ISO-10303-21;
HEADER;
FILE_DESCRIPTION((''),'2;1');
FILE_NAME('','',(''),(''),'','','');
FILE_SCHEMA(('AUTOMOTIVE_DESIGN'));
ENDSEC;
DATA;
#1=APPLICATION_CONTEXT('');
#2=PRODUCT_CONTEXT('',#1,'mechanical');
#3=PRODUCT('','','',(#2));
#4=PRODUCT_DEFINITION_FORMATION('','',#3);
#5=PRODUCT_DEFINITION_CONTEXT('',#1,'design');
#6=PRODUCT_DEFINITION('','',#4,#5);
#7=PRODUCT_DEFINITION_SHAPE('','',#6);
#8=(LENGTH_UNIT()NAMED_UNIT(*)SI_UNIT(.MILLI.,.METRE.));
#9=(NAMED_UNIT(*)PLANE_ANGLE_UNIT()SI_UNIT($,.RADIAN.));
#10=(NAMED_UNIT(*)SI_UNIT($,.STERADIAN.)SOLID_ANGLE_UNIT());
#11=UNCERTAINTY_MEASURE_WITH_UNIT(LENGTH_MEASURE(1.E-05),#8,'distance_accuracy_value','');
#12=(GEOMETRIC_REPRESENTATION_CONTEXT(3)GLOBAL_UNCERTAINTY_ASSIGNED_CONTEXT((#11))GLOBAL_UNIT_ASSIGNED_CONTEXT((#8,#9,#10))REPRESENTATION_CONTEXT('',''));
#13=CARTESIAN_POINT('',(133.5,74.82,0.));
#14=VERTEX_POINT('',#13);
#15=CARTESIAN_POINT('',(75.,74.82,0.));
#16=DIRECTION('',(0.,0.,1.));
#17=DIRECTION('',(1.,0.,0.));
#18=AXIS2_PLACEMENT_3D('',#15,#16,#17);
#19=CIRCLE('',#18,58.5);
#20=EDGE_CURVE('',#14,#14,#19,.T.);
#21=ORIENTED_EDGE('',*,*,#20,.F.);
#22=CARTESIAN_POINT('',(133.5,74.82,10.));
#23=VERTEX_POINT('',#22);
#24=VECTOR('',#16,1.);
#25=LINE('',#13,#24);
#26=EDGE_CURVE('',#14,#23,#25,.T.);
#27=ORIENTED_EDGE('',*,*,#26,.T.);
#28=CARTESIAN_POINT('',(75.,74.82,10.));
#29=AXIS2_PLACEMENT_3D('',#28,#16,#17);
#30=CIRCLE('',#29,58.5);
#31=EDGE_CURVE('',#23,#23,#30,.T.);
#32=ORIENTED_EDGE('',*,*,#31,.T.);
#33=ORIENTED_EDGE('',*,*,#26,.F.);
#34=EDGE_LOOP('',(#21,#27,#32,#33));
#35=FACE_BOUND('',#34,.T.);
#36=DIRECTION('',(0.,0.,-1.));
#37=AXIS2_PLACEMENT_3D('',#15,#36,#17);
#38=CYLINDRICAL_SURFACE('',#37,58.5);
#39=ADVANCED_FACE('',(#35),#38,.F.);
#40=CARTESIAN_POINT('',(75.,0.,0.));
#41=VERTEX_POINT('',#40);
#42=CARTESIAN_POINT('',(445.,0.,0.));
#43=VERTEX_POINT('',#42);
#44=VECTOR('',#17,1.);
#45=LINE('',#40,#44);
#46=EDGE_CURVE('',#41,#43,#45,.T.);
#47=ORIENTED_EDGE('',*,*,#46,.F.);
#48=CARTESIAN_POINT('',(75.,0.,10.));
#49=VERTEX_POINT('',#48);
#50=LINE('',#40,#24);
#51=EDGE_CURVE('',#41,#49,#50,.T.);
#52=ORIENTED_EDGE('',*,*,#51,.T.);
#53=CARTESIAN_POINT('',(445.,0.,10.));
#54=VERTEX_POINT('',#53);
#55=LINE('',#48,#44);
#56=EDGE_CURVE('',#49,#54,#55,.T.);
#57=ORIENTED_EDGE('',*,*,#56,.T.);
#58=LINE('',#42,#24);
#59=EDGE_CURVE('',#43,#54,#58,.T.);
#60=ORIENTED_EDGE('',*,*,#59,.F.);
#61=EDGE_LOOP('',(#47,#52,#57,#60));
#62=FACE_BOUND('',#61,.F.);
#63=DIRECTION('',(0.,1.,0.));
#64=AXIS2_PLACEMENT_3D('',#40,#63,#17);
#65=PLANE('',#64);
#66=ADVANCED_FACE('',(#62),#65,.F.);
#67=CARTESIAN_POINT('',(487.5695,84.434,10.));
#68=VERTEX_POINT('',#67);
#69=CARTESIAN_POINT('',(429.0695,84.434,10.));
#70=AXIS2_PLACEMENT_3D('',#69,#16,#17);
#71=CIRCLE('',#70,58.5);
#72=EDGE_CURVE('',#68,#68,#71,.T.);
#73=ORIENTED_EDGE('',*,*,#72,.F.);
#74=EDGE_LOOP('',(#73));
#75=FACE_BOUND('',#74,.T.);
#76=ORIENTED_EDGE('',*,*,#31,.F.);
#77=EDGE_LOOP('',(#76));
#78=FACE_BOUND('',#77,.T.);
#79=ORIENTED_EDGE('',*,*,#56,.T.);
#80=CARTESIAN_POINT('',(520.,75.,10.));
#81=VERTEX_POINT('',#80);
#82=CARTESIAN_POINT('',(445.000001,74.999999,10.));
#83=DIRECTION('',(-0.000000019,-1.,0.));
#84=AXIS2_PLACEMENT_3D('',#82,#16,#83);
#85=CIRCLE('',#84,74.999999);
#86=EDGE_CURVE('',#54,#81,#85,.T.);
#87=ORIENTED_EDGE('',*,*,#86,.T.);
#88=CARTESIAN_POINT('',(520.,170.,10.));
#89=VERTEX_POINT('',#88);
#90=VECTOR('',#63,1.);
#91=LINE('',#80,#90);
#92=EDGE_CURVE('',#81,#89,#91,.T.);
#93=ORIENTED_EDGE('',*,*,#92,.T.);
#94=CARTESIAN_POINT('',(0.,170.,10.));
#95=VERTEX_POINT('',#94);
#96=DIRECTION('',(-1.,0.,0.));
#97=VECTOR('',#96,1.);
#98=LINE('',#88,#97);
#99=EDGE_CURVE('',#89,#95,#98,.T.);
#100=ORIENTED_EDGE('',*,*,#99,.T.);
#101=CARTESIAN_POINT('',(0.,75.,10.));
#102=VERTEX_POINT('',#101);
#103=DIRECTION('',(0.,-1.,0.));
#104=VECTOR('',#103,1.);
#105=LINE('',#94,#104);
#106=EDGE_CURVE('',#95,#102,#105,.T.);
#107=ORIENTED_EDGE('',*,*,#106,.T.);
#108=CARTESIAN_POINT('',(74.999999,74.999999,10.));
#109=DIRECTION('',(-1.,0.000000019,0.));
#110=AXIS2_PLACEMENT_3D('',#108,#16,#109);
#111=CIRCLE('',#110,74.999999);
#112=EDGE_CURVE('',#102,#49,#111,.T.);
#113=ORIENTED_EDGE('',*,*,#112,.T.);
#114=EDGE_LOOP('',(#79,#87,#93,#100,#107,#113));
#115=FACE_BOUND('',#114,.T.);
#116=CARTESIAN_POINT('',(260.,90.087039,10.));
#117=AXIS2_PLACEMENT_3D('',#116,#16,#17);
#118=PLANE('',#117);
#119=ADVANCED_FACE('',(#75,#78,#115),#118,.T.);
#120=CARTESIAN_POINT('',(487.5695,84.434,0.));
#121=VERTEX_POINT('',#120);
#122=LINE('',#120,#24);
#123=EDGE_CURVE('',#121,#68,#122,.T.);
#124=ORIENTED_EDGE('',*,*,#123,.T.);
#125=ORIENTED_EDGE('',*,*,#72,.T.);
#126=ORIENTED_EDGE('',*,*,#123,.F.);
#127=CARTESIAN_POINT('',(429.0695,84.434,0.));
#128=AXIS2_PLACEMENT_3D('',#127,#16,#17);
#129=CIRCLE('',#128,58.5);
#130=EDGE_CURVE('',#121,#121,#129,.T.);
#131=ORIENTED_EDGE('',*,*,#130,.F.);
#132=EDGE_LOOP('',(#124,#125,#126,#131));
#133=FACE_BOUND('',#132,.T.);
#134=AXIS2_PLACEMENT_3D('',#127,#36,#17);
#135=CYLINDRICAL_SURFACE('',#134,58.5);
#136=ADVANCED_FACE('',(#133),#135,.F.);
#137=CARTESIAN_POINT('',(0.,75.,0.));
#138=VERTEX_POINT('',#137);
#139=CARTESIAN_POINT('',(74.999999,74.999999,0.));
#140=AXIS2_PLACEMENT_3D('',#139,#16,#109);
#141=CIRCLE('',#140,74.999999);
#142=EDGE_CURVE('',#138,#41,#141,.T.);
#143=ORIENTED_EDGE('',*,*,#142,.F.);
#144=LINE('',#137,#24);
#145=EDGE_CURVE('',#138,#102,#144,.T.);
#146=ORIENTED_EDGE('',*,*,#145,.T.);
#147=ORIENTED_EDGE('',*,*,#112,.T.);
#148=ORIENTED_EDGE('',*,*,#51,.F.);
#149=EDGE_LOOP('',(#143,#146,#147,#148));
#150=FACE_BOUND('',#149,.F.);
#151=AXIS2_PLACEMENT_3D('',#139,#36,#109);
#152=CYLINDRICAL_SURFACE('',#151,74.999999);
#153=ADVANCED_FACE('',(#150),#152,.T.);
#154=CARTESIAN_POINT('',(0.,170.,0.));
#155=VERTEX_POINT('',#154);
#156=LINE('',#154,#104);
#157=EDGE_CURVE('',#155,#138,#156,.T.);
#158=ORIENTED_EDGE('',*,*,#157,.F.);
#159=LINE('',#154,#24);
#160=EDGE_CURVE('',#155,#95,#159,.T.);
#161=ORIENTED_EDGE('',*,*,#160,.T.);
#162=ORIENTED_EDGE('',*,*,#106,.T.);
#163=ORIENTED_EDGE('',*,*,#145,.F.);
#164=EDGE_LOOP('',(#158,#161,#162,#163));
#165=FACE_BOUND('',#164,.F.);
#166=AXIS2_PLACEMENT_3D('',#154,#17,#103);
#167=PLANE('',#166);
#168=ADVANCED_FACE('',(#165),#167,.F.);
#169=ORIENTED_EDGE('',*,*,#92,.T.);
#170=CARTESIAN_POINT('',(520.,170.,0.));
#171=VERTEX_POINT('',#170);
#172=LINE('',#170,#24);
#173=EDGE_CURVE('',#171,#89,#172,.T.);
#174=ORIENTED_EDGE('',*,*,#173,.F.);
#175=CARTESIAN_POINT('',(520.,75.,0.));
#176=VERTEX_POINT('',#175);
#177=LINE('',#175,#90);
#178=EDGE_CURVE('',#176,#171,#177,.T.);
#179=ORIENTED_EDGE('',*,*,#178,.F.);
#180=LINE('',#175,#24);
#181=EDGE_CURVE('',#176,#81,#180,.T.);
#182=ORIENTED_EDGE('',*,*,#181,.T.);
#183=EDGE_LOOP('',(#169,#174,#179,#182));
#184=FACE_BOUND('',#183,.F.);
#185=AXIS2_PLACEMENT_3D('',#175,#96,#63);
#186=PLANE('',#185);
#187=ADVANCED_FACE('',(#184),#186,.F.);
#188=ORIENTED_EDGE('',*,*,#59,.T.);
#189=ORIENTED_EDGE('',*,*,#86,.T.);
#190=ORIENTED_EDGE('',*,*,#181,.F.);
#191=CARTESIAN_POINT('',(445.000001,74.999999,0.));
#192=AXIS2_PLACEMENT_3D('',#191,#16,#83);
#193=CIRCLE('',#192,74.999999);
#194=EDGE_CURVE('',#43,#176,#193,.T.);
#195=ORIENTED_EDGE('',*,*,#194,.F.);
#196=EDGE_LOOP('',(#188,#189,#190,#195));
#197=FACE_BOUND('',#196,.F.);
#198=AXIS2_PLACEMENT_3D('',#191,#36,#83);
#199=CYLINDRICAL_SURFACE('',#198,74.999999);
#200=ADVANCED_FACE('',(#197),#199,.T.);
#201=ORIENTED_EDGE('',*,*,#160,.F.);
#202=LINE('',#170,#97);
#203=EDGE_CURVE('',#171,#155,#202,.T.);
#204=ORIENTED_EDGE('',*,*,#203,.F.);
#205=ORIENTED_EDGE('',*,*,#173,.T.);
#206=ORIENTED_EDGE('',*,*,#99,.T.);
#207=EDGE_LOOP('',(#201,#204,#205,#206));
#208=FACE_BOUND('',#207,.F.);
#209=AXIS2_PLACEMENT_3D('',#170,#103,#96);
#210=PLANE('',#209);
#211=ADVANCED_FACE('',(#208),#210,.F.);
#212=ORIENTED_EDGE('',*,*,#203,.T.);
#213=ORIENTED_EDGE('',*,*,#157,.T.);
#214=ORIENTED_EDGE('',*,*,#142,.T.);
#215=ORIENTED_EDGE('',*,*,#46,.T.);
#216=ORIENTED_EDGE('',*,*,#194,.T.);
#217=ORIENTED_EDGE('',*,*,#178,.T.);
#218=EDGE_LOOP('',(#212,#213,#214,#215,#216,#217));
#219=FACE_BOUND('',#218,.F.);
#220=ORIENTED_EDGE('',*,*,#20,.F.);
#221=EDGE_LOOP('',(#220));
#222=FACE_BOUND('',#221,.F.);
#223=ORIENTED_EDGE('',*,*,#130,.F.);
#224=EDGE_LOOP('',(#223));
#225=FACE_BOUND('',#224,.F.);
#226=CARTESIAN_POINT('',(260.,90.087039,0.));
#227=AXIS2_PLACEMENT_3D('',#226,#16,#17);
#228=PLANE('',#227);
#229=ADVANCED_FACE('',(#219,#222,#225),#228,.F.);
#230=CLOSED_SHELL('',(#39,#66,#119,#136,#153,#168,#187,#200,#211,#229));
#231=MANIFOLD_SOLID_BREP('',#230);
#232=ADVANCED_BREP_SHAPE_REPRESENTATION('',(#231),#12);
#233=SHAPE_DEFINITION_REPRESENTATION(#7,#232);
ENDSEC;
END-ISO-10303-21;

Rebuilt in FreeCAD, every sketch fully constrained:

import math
import FreeCAD as App
import Part
import Sketcher
from FreeCAD import Vector
Q = App.Units.Quantity

doc = App.newDocument("Part")
body = doc.addObject("PartDesign::Body", "Body")

# Sketch on XY plane
sketch1 = doc.addObject("Sketcher::SketchObject", "Sketch")
body.addObject(sketch1)
sketch1.AttachmentSupport = (doc.XY_Plane, [""])
sketch1.MapMode = "FlatFace"
sketch1.addGeometry([
    Part.LineSegment(Vector(75, 0, 0), Vector(445, 0, 0)),  # 0
    Part.ArcOfCircle(Part.Circle(Vector(445.000001, 74.999999, 0), Vector(0, 0, 1), 74.999999), math.radians(-90.000001), math.radians(0.000001)),  # 1
    Part.LineSegment(Vector(520, 75, 0), Vector(520, 170, 0)),  # 2
    Part.LineSegment(Vector(520, 170, 0), Vector(0, 170, 0)),  # 3
    Part.LineSegment(Vector(0, 170, 0), Vector(0, 75, 0)),  # 4
    Part.ArcOfCircle(Part.Circle(Vector(74.999999, 74.999999, 0), Vector(0, 0, 1), 74.999999), math.radians(179.999999), math.radians(270.000001)),  # 5
    Part.Circle(Vector(75, 74.82, 0), Vector(0, 0, 1), 58.5),  # 6
    Part.Circle(Vector(429.0695, 84.434, 0), Vector(0, 0, 1), 58.5),  # 7
], False)
sketch1.addConstraint([
    Sketcher.Constraint("Tangent", 0, 2, 1, 1),
    Sketcher.Constraint("Tangent", 1, 2, 2, 1),
    Sketcher.Constraint("Coincident", 2, 2, 3, 1),
    Sketcher.Constraint("Coincident", 3, 2, 4, 1),
    Sketcher.Constraint("Tangent", 4, 2, 5, 1),
    Sketcher.Constraint("Tangent", 5, 2, 0, 1),
    Sketcher.Constraint("Horizontal", 0),
    Sketcher.Constraint("Vertical", 2),
    Sketcher.Constraint("Horizontal", 3),
    Sketcher.Constraint("Vertical", 4),
    Sketcher.Constraint("Equal", 1, 5),
    Sketcher.Constraint("Equal", 6, 7),
    Sketcher.Constraint("PointOnObject", 0, 2, -1),
    Sketcher.Constraint("PointOnObject", 3, 2, -2),
    Sketcher.Constraint("Vertical", 5, 3, 6, 3),
    Sketcher.Constraint("Diameter", 6, Q("117 mm")),
    Sketcher.Constraint("Radius", 1, Q("74.999999 mm")),
    Sketcher.Constraint("DistanceX", 0, 1, 0, 2, Q("370 mm")),
    Sketcher.Constraint("DistanceY", 2, 1, 2, 2, Q("95 mm")),
    Sketcher.Constraint("DistanceY", -1, 1, 6, 3, Q("74.82 mm")),
    Sketcher.Constraint("DistanceY", -1, 1, 7, 3, Q("84.434 mm")),
    Sketcher.Constraint("DistanceX", -1, 1, 7, 3, Q("429.0695 mm")),
])
pad1 = doc.addObject("PartDesign::Pad", "Pad")
body.addObject(pad1)
pad1.Profile = sketch1
pad1.Length = 10

doc.recompute()
